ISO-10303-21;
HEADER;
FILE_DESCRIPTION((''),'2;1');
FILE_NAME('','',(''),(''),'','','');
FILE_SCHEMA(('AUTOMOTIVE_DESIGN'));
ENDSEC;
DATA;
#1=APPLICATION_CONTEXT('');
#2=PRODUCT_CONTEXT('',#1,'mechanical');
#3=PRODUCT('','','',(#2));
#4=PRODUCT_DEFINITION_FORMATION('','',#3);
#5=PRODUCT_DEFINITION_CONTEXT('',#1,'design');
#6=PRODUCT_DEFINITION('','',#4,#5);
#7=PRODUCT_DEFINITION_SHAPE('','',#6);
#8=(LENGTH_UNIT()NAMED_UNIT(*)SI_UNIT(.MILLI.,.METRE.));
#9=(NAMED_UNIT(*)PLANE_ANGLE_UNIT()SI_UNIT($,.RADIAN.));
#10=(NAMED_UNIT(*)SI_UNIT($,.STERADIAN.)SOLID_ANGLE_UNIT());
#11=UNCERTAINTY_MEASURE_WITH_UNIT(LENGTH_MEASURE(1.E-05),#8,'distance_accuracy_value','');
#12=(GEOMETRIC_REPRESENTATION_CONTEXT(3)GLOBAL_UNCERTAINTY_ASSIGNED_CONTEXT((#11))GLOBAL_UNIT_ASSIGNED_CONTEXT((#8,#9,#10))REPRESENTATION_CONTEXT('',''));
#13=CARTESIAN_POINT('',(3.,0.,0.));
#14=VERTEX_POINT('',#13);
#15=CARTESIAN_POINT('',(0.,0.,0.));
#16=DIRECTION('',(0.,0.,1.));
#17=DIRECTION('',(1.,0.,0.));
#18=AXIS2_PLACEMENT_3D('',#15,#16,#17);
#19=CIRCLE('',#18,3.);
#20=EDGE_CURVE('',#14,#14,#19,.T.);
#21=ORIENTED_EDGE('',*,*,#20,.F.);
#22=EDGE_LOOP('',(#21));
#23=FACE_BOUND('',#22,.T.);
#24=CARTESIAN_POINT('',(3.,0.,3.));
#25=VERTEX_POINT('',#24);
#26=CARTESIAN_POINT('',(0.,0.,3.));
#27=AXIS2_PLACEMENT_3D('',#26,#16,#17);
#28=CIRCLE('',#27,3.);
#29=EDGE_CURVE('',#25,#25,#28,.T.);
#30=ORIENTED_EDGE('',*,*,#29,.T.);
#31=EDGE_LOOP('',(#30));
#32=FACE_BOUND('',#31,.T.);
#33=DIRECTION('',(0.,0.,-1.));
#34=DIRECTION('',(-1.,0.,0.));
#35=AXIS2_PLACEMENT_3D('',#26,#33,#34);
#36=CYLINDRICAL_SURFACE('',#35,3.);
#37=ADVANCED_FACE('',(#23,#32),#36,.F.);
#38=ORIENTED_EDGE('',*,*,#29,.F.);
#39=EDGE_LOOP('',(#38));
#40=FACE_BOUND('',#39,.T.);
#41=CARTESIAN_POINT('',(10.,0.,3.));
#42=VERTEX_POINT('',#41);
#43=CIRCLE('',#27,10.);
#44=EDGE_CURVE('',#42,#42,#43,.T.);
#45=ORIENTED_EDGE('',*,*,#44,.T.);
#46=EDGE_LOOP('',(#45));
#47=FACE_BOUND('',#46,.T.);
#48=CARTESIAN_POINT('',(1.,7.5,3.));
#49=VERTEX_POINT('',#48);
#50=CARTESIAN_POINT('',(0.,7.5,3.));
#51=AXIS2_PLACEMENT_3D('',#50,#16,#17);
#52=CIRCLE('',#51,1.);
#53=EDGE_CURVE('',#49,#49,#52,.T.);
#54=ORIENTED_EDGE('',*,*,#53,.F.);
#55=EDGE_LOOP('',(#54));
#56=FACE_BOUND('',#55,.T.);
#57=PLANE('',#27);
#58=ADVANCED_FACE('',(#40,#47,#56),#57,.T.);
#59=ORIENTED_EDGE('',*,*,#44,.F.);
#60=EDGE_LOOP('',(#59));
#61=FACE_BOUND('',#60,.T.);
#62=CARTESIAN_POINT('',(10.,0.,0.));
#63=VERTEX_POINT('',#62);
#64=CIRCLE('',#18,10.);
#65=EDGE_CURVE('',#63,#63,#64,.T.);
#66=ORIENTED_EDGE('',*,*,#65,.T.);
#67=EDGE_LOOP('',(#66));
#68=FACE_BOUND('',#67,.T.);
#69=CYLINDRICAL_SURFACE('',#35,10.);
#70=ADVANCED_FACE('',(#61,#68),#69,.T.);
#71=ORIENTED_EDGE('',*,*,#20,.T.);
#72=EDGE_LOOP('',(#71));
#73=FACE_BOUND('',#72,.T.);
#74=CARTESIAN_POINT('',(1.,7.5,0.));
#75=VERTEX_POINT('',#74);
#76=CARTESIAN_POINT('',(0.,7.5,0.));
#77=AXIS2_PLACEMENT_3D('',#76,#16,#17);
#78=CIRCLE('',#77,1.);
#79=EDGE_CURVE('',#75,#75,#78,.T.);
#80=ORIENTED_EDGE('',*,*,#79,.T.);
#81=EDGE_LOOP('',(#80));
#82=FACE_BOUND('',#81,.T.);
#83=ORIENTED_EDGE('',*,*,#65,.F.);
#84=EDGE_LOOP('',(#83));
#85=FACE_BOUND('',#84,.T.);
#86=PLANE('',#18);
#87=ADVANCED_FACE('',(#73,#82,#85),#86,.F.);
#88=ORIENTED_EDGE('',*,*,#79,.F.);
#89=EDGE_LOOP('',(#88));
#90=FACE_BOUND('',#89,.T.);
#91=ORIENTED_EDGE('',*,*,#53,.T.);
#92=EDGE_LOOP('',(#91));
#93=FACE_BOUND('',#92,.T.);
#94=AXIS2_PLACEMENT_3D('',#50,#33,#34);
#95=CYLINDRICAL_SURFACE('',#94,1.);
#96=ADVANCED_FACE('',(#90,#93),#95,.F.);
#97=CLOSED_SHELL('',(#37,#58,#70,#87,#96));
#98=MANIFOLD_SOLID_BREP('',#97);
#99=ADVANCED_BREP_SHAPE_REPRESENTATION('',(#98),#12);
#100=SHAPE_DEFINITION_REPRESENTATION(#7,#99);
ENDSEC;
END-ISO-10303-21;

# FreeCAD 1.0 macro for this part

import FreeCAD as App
import Part
import Sketcher

V = App.Vector
Q = App.Units.Quantity

doc = App.newDocument("Part")
body = doc.addObject("PartDesign::Body", "Body")

# Sketch on XY plane
sketch1 = doc.addObject("Sketcher::SketchObject", "Sketch")
body.addObject(sketch1)
sketch1.AttachmentSupport = (doc.XY_Plane, [""])
sketch1.MapMode = "FlatFace"
sketch1.addGeometry([
    Part.Circle(V(0, 0, 0), V(0, 0, 1), 10),
    Part.Circle(V(0, 0, 0), V(0, 0, 1), 3),
    Part.Circle(V(0, 7.5, 0), V(0, 0, 1), 1),
], False)
sketch1.addConstraint([
    Sketcher.Constraint("Coincident", 0, 3, -1, 1),
    Sketcher.Constraint("Coincident", 1, 3, -1, 1),
    Sketcher.Constraint("PointOnObject", 2, 3, -2),
    Sketcher.Constraint("Diameter", 0, Q("20 mm")),
    Sketcher.Constraint("Diameter", 1, Q("6 mm")),
    Sketcher.Constraint("Diameter", 2, Q("2 mm")),
    Sketcher.Constraint("DistanceY", -1, 1, 2, 3, Q("7.5 mm")),
])
pad1 = doc.addObject("PartDesign::Pad", "Pad")
body.addObject(pad1)
pad1.Profile = sketch1
pad1.Length = 3

doc.recompute()
